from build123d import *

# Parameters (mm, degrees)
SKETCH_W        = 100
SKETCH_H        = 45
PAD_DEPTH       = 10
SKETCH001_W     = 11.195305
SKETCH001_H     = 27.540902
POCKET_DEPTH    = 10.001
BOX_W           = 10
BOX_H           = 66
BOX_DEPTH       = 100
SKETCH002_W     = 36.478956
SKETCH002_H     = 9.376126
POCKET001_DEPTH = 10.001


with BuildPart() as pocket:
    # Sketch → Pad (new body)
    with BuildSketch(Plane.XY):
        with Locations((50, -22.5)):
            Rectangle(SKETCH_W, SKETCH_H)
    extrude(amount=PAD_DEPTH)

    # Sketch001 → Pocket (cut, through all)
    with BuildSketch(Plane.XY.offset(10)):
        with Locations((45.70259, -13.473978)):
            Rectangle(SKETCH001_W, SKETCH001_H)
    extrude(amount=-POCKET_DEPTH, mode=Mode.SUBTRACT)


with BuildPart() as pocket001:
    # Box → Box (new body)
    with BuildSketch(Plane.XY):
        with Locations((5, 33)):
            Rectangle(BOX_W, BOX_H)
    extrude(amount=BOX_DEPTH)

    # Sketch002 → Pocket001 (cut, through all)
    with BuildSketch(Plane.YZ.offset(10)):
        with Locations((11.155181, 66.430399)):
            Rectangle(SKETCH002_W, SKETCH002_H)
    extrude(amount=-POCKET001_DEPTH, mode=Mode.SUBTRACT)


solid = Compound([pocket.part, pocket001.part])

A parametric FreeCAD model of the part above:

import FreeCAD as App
import Part
import Sketcher
from FreeCAD import Vector
Q = App.Units.Quantity


def add_polygon(sketch, points):
    """Adds a closed chain of lines whose ends are joined by coincident constraints."""
    first, n = sketch.GeometryCount, len(points)
    for a, b in zip(points, points[1:] + points[:1]):
        sketch.addGeometry(Part.LineSegment(App.Vector(*a, 0), App.Vector(*b, 0)), False)
    for i in range(n):
        sketch.addConstraint(Sketcher.Constraint("Coincident", first + i, 2, first + (i + 1) % n, 1))

doc = App.newDocument("Part")
body = doc.addObject("PartDesign::Body", "Body")

# Sketch on XY plane
sketch1 = body.newObject("Sketcher::SketchObject", "Sketch")
sketch1.AttachmentSupport = (doc.getObject("XY_Plane"), [""])
sketch1.MapMode = "FlatFace"
add_polygon(sketch1, [(0, 0), (0, -45), (100, -45), (100, 0)])  # lines 0-3
sketch1.addConstraint([
    Sketcher.Constraint("Vertical", 0),
    Sketcher.Constraint("Horizontal", 1),
    Sketcher.Constraint("Vertical", 2),
    Sketcher.Constraint("Horizontal", 3),
    Sketcher.Constraint("Coincident", 3, 2, -1, 1),
    Sketcher.Constraint("DistanceX", 1, 1, 1, 2, Q("100 mm")),
    Sketcher.Constraint("DistanceY", 0, 2, 0, 1, Q("45 mm")),
])
pad1 = body.newObject("PartDesign::Pad", "Pad")
pad1.Profile = sketch1
pad1.Length = 10

# Sketch on XY plane
sketch2 = body.newObject("Sketcher::SketchObject", "Sketch001")
sketch2.AttachmentSupport = (doc.getObject("XY_Plane"), [""])
sketch2.MapMode = "FlatFace"
sketch2.AttachmentOffset = App.Placement(Vector(0, 0, 10), App.Rotation())
add_polygon(sketch2, [(40, 0), (40, -27), (51, -27), (51, 0)])  # lines 0-3
sketch2.addConstraint([
    Sketcher.Constraint("Vertical", 0),
    Sketcher.Constraint("Horizontal", 1),
    Sketcher.Constraint("Vertical", 2),
    Sketcher.Constraint("Horizontal", 3),
    Sketcher.Constraint("DistanceY", 0, 2, 0, 1, Q("27.540902 mm")),
    Sketcher.Constraint("DistanceX", 1, 1, 1, 2, Q("11.195305 mm")),
    Sketcher.Constraint("DistanceY", 0, 2, -1, 1, Q("27.244429 mm")),
    Sketcher.Constraint("DistanceX", -1, 1, 0, 2, Q("40.104937 mm")),
])
pocket1 = body.newObject("PartDesign::Pocket", "Pocket")
pocket1.Profile = sketch2
pocket1.Type = "ThroughAll"
body2 = doc.addObject("PartDesign::Body", "Body001")

# Sketch on XY plane
sketch3 = body2.newObject("Sketcher::SketchObject", "Sketch002")
sketch3.AttachmentSupport = (doc.getObject("XY_Plane001"), [""])
sketch3.MapMode = "FlatFace"
add_polygon(sketch3, [(0, 66), (0, 0), (10, 0), (10, 66)])  # lines 0-3
sketch3.addConstraint([
    Sketcher.Constraint("Vertical", 0),
    Sketcher.Constraint("Horizontal", 1),
    Sketcher.Constraint("Vertical", 2),
    Sketcher.Constraint("Horizontal", 3),
    Sketcher.Constraint("Coincident", 0, 2, -1, 1),
    Sketcher.Constraint("DistanceX", 1, 1, 1, 2, Q("10 mm")),
    Sketcher.Constraint("DistanceY", 0, 2, 0, 1, Q("66 mm")),
])
pad2 = body2.newObject("PartDesign::Pad", "Pad001")
pad2.Profile = sketch3
pad2.Length = 100

# Sketch on YZ plane
sketch4 = body2.newObject("Sketcher::SketchObject", "Sketch003")
sketch4.AttachmentSupport = (doc.getObject("YZ_Plane001"), [""])
sketch4.MapMode = "FlatFace"
sketch4.AttachmentOffset = App.Placement(Vector(0, 0, 10), App.Rotation())
add_polygon(sketch4, [(-7, 71), (-7, 62), (29, 62), (29, 71)])  # lines 0-3
sketch4.addConstraint([
    Sketcher.Constraint("Vertical", 0),
    Sketcher.Constraint("Horizontal", 1),
    Sketcher.Constraint("Vertical", 2),
    Sketcher.Constraint("Horizontal", 3),
    Sketcher.Constraint("DistanceX", 1, 1, 1, 2, Q("36.478956 mm")),
    Sketcher.Constraint("DistanceY", 0, 2, 0, 1, Q("9.376126 mm")),
    Sketcher.Constraint("DistanceX", -1, 1, 1, 2, Q("29.394659 mm")),
    Sketcher.Constraint("DistanceY", -1, 1, 2, 2, Q("71.118462 mm")),
])
pocket2 = body2.newObject("PartDesign::Pocket", "Pocket001")
pocket2.Profile = sketch4
pocket2.Type = "ThroughAll"

doc.recompute()
